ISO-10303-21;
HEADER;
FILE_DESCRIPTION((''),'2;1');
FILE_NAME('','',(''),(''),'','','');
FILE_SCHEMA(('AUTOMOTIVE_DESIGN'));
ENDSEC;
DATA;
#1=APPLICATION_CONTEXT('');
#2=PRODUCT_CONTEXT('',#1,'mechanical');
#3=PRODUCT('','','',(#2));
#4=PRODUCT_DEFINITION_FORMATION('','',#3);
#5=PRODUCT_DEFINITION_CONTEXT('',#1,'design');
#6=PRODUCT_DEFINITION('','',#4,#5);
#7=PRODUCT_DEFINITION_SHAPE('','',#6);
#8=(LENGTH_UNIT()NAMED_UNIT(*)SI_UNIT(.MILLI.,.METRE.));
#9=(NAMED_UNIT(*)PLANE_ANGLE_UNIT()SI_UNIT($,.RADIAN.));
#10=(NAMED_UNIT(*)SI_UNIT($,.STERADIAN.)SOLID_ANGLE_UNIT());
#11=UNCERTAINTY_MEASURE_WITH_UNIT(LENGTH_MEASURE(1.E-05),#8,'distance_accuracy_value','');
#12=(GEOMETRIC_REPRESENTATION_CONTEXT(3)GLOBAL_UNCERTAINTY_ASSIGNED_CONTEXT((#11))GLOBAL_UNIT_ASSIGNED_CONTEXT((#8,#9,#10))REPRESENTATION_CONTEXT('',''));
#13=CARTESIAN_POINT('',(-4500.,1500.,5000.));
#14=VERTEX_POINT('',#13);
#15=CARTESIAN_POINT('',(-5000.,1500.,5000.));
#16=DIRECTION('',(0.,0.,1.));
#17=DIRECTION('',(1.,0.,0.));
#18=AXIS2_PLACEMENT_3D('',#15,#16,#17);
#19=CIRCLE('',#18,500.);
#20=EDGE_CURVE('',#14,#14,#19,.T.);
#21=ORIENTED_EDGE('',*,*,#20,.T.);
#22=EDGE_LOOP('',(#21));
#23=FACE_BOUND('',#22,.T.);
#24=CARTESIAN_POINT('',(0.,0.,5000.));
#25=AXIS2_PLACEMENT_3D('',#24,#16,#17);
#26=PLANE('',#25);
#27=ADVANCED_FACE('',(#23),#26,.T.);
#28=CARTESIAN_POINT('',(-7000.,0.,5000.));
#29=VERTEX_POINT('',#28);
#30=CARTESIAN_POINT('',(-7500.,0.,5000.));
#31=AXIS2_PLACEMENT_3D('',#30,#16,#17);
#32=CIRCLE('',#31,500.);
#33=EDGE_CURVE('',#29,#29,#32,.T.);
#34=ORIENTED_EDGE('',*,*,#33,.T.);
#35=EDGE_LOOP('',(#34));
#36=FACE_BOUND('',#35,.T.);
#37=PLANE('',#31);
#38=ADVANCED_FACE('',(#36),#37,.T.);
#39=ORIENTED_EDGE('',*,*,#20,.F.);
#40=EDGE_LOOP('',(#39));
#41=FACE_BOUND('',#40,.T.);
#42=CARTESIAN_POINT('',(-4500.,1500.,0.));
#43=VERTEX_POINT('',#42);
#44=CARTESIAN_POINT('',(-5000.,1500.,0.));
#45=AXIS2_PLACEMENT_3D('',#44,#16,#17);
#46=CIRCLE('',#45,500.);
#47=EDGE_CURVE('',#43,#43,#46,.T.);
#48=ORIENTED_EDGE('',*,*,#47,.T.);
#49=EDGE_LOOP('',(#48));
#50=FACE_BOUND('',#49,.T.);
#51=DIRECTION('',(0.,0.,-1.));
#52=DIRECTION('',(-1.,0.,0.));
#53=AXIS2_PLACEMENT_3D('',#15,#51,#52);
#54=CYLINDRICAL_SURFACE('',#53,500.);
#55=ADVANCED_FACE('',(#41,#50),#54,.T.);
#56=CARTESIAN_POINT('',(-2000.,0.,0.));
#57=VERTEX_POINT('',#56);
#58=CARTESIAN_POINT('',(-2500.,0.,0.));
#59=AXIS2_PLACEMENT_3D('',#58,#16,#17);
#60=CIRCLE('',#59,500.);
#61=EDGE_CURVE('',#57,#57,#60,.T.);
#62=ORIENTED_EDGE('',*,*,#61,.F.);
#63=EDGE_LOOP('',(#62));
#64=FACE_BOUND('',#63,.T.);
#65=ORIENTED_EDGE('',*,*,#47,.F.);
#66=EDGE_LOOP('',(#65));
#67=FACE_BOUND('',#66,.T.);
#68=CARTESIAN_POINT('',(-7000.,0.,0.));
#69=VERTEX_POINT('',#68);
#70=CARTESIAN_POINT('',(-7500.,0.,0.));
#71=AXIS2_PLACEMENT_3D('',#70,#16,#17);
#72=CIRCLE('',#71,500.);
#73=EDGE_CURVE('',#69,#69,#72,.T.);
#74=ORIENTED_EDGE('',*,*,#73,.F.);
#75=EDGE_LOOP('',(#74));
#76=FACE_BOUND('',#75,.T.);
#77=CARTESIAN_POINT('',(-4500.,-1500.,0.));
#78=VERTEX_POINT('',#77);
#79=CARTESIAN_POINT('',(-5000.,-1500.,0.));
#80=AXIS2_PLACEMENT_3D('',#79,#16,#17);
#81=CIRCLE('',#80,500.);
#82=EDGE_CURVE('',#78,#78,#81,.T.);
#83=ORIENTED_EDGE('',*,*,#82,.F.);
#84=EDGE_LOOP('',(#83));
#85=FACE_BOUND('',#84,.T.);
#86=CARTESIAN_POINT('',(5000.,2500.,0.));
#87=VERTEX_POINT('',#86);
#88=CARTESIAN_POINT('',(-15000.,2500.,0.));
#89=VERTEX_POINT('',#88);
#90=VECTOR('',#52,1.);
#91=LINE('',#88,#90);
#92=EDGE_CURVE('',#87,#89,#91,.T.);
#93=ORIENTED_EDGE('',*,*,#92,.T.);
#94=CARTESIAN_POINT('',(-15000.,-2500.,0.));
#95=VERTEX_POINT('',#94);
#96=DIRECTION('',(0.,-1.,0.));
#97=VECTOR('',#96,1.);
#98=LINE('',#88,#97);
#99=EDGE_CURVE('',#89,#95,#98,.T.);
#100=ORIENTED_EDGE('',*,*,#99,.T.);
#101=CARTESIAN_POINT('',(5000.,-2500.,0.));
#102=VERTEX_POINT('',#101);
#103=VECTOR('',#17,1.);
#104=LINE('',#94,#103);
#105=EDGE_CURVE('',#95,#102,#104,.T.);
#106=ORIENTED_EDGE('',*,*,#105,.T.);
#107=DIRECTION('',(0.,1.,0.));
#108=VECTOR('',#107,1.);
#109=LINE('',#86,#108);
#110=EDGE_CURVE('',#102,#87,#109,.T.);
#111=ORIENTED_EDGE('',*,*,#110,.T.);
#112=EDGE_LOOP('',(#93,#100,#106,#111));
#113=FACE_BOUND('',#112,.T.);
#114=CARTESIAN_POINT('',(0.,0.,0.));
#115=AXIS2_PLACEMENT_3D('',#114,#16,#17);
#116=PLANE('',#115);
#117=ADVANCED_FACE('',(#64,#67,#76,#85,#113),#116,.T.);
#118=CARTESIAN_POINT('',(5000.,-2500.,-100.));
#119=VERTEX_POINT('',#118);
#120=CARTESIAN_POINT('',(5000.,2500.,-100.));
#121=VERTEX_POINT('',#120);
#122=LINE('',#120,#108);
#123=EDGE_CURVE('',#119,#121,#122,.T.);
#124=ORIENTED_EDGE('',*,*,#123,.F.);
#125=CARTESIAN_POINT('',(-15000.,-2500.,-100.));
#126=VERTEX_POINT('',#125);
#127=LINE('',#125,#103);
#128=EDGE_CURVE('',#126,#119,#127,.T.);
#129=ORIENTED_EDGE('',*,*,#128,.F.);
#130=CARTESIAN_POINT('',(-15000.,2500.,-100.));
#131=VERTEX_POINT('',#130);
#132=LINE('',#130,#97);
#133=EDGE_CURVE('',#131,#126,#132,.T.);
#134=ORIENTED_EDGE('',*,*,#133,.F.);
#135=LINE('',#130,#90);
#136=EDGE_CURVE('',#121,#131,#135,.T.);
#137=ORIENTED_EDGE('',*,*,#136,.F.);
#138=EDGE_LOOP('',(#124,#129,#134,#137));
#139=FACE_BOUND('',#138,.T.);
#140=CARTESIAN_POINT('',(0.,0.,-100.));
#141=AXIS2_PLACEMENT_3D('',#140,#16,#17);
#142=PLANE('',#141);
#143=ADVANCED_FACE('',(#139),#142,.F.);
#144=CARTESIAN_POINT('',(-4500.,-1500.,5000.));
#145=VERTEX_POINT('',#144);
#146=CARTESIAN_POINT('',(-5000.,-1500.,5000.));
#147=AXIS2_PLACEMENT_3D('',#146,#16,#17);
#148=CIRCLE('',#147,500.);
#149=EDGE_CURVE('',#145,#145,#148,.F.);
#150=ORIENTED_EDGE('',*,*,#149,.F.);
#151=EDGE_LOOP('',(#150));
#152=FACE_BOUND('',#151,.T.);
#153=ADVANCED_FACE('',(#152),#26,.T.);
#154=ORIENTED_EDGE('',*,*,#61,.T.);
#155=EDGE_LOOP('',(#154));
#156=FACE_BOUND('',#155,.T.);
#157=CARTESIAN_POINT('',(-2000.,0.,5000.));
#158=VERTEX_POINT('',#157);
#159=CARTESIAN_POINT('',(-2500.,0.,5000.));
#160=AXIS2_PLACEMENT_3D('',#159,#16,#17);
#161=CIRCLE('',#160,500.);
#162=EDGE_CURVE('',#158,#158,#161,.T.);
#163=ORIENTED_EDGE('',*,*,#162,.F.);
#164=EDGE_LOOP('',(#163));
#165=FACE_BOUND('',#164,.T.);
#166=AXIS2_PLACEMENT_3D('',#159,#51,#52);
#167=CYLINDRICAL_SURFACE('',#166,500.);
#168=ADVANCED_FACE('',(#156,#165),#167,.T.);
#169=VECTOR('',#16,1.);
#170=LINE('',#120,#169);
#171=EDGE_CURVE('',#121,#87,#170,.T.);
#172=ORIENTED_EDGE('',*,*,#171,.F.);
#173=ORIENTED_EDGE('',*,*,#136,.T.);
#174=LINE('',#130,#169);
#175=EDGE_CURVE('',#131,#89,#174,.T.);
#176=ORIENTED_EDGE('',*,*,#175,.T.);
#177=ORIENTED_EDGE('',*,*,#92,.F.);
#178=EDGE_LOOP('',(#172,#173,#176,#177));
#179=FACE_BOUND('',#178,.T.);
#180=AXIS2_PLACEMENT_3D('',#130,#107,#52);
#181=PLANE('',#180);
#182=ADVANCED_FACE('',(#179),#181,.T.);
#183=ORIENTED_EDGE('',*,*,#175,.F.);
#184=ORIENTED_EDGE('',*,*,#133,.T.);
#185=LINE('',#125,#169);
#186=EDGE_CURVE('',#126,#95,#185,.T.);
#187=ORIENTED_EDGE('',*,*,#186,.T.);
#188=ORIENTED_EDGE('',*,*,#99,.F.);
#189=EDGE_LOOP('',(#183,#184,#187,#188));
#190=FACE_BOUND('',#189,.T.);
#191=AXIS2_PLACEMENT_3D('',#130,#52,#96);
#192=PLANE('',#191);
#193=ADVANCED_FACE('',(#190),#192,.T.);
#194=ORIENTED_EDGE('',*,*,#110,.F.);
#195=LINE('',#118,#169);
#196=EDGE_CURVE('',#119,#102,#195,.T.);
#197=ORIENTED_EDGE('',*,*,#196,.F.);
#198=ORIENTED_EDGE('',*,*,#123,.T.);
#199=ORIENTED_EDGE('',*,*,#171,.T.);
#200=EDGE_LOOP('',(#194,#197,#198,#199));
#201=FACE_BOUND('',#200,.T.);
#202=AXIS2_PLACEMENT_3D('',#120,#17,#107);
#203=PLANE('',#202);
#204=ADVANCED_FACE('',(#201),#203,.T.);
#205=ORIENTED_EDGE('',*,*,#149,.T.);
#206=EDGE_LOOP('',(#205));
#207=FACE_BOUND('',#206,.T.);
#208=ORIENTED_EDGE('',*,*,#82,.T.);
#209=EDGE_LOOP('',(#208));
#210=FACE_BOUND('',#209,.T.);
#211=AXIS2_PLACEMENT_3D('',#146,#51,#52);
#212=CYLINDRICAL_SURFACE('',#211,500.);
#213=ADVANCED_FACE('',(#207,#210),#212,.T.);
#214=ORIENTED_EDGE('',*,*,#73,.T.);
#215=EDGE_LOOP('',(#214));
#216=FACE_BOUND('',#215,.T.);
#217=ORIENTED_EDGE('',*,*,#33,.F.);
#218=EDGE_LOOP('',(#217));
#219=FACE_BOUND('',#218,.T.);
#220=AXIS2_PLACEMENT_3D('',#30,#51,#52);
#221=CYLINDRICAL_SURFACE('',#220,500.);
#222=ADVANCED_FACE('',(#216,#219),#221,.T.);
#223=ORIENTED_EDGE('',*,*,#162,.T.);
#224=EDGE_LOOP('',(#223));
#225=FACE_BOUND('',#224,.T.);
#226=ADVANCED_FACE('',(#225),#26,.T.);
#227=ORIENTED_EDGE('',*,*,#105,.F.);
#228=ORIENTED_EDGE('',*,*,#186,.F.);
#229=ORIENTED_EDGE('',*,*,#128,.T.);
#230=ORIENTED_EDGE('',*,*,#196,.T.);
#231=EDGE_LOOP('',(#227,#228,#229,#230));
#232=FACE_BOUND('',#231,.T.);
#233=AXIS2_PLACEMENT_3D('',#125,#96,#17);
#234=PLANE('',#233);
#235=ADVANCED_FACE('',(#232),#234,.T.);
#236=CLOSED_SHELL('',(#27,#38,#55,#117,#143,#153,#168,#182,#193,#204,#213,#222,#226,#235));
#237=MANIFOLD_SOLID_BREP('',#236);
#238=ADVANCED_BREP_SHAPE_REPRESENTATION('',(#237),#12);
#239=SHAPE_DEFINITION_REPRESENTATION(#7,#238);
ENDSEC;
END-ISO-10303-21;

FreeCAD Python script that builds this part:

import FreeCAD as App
import Part
import Sketcher
from FreeCAD import Vector
Q = App.Units.Quantity


def add_polygon(sketch, points):
    """Adds a closed chain of lines whose ends are joined by coincident constraints."""
    first, n = sketch.GeometryCount, len(points)
    for a, b in zip(points, points[1:] + points[:1]):
        sketch.addGeometry(Part.LineSegment(App.Vector(*a, 0), App.Vector(*b, 0)), False)
    for i in range(n):
        sketch.addConstraint(Sketcher.Constraint("Coincident", first + i, 2, first + (i + 1) % n, 1))

doc = App.newDocument("Part")
body = doc.addObject("PartDesign::Body", "Body")

sketch1 = body.newObject("Sketcher::SketchObject", "Sketch")
sketch1.AttachmentSupport = (doc.getObject("XY_Plane"), [""])
sketch1.MapMode = "FlatFace"
add_polygon(sketch1, [(-15000, 2500), (-15000, -2500), (5000, -2500), (5000, 2500)])
sketch1.addConstraint([
    Sketcher.Constraint("Vertical", 0),
    Sketcher.Constraint("Horizontal", 1),
    Sketcher.Constraint("Vertical", 2),
    Sketcher.Constraint("Horizontal", 3),
    Sketcher.Constraint("DistanceX", 1, 1, 1, 2, Q("20000 mm")),
    Sketcher.Constraint("DistanceY", 0, 2, 0, 1, Q("5000 mm")),
    Sketcher.Constraint("DistanceX", 0, 2, -1, 1, Q("15000 mm")),
    Sketcher.Constraint("DistanceY", 0, 2, -1, 1, Q("2500 mm")),
])
pad1 = body.newObject("PartDesign::Pad", "Pad")
pad1.Profile = sketch1
pad1.Length = 100
pad1.Reversed = True

sketch2 = body.newObject("Sketcher::SketchObject", "Sketch001")
sketch2.AttachmentSupport = (doc.getObject("XY_Plane"), [""])
sketch2.MapMode = "FlatFace"
sketch2.addGeometry([
    Part.Circle(Vector(-5000, 1500, 0), Vector(0, 0, 1), 500),
    Part.Circle(Vector(-2500, 0, 0), Vector(0, 0, 1), 500),
    Part.Circle(Vector(-5000, -1500, 0), Vector(0, 0, 1), 500),
    Part.Circle(Vector(-7500, 0, 0), Vector(0, 0, 1), 500),
], False)
sketch2.addConstraint([
    Sketcher.Constraint("Equal", 0, 1),
    Sketcher.Constraint("Equal", 1, 2),
    Sketcher.Constraint("Equal", 2, 3),
    Sketcher.Constraint("Symmetric", 0, 3, 2, 3, -1),
    Sketcher.Constraint("PointOnObject", 1, 3, -1),
    Sketcher.Constraint("PointOnObject", 3, 3, -1),
    Sketcher.Constraint("Diameter", 0, Q("1000 mm")),
    Sketcher.Constraint("DistanceX", 0, 3, -1, 1, Q("5000 mm")),
    Sketcher.Constraint("DistanceY", -1, 1, 0, 3, Q("1500 mm")),
    Sketcher.Constraint("DistanceX", 1, 3, -1, 1, Q("2500 mm")),
    Sketcher.Constraint("DistanceX", 3, 3, -1, 1, Q("7500 mm")),
])
pad2 = body.newObject("PartDesign::Pad", "Pad001")
pad2.Profile = sketch2
pad2.Length = 5000

doc.recompute()
